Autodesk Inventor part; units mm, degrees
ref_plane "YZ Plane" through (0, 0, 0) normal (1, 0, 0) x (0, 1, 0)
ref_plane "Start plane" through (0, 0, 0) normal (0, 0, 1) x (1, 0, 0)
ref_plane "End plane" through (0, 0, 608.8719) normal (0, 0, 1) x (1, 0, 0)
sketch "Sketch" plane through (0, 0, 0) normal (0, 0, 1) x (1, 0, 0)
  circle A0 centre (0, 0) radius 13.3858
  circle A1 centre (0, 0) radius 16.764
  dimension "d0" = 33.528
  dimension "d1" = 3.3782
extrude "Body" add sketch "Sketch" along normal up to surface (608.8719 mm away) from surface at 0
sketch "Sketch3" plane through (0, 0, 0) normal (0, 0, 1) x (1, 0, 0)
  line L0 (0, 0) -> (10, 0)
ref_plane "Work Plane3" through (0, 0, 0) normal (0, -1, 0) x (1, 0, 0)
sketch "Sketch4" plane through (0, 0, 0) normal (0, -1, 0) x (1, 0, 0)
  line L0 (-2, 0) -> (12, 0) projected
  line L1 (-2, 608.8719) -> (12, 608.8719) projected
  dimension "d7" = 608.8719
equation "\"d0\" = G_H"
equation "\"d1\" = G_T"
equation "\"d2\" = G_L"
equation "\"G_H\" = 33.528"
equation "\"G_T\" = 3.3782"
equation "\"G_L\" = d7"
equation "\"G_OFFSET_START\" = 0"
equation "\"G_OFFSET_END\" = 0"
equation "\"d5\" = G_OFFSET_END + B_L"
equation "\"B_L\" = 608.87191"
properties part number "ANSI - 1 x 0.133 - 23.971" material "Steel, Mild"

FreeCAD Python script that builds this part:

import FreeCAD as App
import Part
import Sketcher

V = App.Vector
Q = App.Units.Quantity

doc = App.newDocument("Part")
body = doc.addObject("PartDesign::Body", "Body")

sketch1 = body.newObject("Sketcher::SketchObject", "Sketch")
sketch1.AttachmentSupport = (doc.getObject("XY_Plane"), [""])
sketch1.MapMode = "FlatFace"
sketch1.addGeometry([
    Part.Circle(V(0, 0, 0), V(0, 0, 1), 17),
    Part.Circle(V(0, 0, 0), V(0, 0, 1), 13),
], False)
sketch1.addConstraint([
    Sketcher.Constraint("Coincident", 0, 3, -1, 1),
    Sketcher.Constraint("Coincident", 1, 3, -1, 1),
    Sketcher.Constraint("Diameter", 0, Q("1.32 in")),
    Sketcher.Constraint("Diameter", 1, Q("1.054 in")),
])
pad1 = body.newObject("PartDesign::Pad", "Pad")
pad1.Profile = sketch1
pad1.Length = 608.8719

doc.recompute()
